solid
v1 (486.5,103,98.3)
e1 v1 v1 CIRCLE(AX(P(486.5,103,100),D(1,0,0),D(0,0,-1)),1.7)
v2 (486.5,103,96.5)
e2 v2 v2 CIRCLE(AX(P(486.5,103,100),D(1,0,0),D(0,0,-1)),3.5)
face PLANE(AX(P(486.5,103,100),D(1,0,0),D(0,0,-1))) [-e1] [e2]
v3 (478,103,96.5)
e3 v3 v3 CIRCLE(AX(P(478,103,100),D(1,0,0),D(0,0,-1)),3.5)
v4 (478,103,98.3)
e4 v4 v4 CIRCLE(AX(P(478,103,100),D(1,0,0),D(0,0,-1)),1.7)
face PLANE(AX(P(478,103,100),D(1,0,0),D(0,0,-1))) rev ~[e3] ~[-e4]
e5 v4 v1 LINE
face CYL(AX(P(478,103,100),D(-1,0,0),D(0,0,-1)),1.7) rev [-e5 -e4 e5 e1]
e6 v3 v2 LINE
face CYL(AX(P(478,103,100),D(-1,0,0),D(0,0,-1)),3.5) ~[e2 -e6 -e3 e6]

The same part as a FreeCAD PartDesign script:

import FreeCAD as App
import Part
import Sketcher

V = App.Vector

doc = App.newDocument("Part")
body = doc.addObject("PartDesign::Body", "Body")

# Sketch on YZ plane
sketch1 = body.newObject("Sketcher::SketchObject", "Sketch")
sketch1.AttachmentSupport = (doc.getObject("YZ_Plane"), [""])
sketch1.MapMode = "FlatFace"
sketch1.AttachmentOffset = App.Placement(V(0, 0, 436), App.Rotation())
sketch1.addGeometry(Part.Circle(V(103, 100, 0), V(0, 0, 1), 1.7), False)
sketch1.addConstraint(Sketcher.Constraint("Diameter", 0, 3.4))
sketch1.addConstraint(Sketcher.Constraint("DistanceX", -1, 1, 0, 3, 103.0))
sketch1.addConstraint(Sketcher.Constraint("DistanceY", -1, 1, 0, 3, 100.0))
pad1 = body.newObject("PartDesign::Pad", "Pad")
pad1.Profile = sketch1
pad1.Length = 8.5
body2 = doc.addObject("PartDesign::Body", "Body001")

# Sketch on YZ plane
sketch2 = body2.newObject("Sketcher::SketchObject", "Sketch001")
sketch2.AttachmentSupport = (doc.getObject("YZ_Plane001"), [""])
sketch2.MapMode = "FlatFace"
sketch2.AttachmentOffset = App.Placement(V(0, 0, 436), App.Rotation())
sketch2.addGeometry(Part.Circle(V(103, 100, 0), V(0, 0, 1), 3.5), False)
sketch2.addConstraint(Sketcher.Constraint("Diameter", 0, 7.0))
sketch2.addConstraint(Sketcher.Constraint("DistanceX", -1, 1, 0, 3, 103.0))
sketch2.addConstraint(Sketcher.Constraint("DistanceY", -1, 1, 0, 3, 100.0))
pad2 = body2.newObject("PartDesign::Pad", "Pad001")
pad2.Profile = sketch2
pad2.Length = 8.5
doc.recompute()

boolean = body2.newObject("PartDesign::Boolean", "Boolean")
boolean.Type = "Cut"
boolean.addObjects([body])
body3 = doc.addObject("PartDesign::Body", "Body002")
doc.recompute()

body2.Placement = App.Placement(V(42, 0, 0), App.Rotation(V(0, 0, 1), 0))
boolean2 = body3.newObject("PartDesign::Boolean", "Boolean001")
boolean2.Type = "Fuse"
boolean2.addObjects([body2])

doc.recompute()
